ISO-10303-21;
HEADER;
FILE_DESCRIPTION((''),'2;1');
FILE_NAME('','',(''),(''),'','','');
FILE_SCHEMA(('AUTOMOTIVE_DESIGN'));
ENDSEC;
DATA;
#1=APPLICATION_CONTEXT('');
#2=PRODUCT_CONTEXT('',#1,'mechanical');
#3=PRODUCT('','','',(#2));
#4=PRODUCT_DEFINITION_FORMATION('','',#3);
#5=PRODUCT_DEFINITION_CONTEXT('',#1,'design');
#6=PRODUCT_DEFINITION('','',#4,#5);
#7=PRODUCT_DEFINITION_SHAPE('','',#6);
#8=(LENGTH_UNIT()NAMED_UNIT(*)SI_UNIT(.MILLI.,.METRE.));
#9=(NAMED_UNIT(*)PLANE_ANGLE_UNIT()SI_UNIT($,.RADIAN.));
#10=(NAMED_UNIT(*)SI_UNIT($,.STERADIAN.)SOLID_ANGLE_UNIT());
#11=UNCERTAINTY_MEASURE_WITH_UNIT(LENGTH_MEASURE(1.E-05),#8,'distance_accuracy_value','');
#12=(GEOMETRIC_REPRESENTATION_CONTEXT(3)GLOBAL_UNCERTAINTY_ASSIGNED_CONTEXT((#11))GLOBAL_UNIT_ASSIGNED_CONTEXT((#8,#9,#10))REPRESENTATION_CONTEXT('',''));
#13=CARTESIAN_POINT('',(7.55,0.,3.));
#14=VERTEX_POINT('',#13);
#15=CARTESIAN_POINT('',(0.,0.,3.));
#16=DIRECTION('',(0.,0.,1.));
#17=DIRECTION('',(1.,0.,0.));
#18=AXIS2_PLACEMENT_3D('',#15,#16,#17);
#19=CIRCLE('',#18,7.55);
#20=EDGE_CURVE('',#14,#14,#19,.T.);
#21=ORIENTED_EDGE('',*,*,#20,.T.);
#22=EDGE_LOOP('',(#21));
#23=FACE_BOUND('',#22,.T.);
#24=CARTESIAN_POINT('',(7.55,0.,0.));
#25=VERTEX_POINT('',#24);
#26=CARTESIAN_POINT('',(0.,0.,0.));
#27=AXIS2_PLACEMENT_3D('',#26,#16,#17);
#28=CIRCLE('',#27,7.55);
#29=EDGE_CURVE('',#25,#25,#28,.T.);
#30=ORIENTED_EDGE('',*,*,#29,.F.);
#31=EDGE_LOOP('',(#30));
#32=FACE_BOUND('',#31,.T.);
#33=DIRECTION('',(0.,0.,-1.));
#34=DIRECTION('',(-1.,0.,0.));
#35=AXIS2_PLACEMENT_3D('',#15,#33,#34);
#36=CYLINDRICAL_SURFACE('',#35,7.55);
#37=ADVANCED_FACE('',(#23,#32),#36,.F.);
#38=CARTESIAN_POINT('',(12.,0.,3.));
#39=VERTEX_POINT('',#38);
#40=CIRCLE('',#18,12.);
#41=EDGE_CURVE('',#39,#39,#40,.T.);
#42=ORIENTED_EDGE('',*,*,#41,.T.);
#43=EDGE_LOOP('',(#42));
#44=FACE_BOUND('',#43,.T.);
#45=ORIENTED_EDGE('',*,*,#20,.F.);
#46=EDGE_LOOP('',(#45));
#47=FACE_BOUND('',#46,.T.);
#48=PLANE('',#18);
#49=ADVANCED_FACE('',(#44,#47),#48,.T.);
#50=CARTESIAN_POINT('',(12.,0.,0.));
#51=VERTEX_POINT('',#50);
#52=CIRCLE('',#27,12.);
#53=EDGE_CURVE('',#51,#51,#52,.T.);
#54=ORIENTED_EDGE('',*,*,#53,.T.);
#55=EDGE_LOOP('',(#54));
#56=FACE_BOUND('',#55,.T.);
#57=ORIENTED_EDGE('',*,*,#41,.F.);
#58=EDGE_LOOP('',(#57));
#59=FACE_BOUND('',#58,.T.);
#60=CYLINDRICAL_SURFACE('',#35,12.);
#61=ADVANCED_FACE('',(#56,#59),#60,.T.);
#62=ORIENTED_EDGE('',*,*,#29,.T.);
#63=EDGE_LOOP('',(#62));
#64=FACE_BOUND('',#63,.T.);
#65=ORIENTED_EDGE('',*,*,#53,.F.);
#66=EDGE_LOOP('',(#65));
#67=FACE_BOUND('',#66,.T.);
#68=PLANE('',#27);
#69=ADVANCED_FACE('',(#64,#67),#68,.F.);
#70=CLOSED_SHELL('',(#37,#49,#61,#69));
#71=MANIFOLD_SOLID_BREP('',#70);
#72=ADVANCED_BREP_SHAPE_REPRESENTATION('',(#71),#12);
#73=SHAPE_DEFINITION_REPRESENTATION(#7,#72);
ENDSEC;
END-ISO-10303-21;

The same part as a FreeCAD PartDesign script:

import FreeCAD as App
import Part
import Sketcher

V = App.Vector
Q = App.Units.Quantity

doc = App.newDocument("Part")
params = doc.addObject("Spreadsheet::Sheet", "Params")
for row, (alias, value) in enumerate([
    ("sketch1_diameter", "24 mm"),
    ("sketch1_diameter2", "15.1 mm"),
    ("pad1_length", "3 mm"),
], start=1):
    params.set(f"A{row}", alias)
    params.set(f"B{row}", "=" + value)
    params.setAlias(f"B{row}", alias)

body = doc.addObject("PartDesign::Body", "Body")

# Sketch on XY plane
sketch1 = body.newObject("Sketcher::SketchObject", "Sketch")
sketch1.AttachmentSupport = (doc.getObject("XY_Plane"), [""])
sketch1.MapMode = "FlatFace"
sketch1.addGeometry([
    Part.Circle(V(0, 0, 0), V(0, 0, 1), 12),
    Part.Circle(V(0, 0, 0), V(0, 0, 1), 7.55),
], False)
sketch1.addConstraint([
    Sketcher.Constraint("Coincident", 0, 3, -1, 1),
    Sketcher.Constraint("Coincident", 1, 3, -1, 1),
    Sketcher.Constraint("Diameter", 0, Q("24 mm")),
    Sketcher.Constraint("Diameter", 1, Q("15.1 mm")),
])
sketch1.setExpression("Constraints[2]", "Params.sketch1_diameter")
sketch1.setExpression("Constraints[3]", "Params.sketch1_diameter2")
pad1 = body.newObject("PartDesign::Pad", "Pad")
pad1.Profile = sketch1
pad1.setExpression("Length", "Params.pad1_length")

doc.recompute()
